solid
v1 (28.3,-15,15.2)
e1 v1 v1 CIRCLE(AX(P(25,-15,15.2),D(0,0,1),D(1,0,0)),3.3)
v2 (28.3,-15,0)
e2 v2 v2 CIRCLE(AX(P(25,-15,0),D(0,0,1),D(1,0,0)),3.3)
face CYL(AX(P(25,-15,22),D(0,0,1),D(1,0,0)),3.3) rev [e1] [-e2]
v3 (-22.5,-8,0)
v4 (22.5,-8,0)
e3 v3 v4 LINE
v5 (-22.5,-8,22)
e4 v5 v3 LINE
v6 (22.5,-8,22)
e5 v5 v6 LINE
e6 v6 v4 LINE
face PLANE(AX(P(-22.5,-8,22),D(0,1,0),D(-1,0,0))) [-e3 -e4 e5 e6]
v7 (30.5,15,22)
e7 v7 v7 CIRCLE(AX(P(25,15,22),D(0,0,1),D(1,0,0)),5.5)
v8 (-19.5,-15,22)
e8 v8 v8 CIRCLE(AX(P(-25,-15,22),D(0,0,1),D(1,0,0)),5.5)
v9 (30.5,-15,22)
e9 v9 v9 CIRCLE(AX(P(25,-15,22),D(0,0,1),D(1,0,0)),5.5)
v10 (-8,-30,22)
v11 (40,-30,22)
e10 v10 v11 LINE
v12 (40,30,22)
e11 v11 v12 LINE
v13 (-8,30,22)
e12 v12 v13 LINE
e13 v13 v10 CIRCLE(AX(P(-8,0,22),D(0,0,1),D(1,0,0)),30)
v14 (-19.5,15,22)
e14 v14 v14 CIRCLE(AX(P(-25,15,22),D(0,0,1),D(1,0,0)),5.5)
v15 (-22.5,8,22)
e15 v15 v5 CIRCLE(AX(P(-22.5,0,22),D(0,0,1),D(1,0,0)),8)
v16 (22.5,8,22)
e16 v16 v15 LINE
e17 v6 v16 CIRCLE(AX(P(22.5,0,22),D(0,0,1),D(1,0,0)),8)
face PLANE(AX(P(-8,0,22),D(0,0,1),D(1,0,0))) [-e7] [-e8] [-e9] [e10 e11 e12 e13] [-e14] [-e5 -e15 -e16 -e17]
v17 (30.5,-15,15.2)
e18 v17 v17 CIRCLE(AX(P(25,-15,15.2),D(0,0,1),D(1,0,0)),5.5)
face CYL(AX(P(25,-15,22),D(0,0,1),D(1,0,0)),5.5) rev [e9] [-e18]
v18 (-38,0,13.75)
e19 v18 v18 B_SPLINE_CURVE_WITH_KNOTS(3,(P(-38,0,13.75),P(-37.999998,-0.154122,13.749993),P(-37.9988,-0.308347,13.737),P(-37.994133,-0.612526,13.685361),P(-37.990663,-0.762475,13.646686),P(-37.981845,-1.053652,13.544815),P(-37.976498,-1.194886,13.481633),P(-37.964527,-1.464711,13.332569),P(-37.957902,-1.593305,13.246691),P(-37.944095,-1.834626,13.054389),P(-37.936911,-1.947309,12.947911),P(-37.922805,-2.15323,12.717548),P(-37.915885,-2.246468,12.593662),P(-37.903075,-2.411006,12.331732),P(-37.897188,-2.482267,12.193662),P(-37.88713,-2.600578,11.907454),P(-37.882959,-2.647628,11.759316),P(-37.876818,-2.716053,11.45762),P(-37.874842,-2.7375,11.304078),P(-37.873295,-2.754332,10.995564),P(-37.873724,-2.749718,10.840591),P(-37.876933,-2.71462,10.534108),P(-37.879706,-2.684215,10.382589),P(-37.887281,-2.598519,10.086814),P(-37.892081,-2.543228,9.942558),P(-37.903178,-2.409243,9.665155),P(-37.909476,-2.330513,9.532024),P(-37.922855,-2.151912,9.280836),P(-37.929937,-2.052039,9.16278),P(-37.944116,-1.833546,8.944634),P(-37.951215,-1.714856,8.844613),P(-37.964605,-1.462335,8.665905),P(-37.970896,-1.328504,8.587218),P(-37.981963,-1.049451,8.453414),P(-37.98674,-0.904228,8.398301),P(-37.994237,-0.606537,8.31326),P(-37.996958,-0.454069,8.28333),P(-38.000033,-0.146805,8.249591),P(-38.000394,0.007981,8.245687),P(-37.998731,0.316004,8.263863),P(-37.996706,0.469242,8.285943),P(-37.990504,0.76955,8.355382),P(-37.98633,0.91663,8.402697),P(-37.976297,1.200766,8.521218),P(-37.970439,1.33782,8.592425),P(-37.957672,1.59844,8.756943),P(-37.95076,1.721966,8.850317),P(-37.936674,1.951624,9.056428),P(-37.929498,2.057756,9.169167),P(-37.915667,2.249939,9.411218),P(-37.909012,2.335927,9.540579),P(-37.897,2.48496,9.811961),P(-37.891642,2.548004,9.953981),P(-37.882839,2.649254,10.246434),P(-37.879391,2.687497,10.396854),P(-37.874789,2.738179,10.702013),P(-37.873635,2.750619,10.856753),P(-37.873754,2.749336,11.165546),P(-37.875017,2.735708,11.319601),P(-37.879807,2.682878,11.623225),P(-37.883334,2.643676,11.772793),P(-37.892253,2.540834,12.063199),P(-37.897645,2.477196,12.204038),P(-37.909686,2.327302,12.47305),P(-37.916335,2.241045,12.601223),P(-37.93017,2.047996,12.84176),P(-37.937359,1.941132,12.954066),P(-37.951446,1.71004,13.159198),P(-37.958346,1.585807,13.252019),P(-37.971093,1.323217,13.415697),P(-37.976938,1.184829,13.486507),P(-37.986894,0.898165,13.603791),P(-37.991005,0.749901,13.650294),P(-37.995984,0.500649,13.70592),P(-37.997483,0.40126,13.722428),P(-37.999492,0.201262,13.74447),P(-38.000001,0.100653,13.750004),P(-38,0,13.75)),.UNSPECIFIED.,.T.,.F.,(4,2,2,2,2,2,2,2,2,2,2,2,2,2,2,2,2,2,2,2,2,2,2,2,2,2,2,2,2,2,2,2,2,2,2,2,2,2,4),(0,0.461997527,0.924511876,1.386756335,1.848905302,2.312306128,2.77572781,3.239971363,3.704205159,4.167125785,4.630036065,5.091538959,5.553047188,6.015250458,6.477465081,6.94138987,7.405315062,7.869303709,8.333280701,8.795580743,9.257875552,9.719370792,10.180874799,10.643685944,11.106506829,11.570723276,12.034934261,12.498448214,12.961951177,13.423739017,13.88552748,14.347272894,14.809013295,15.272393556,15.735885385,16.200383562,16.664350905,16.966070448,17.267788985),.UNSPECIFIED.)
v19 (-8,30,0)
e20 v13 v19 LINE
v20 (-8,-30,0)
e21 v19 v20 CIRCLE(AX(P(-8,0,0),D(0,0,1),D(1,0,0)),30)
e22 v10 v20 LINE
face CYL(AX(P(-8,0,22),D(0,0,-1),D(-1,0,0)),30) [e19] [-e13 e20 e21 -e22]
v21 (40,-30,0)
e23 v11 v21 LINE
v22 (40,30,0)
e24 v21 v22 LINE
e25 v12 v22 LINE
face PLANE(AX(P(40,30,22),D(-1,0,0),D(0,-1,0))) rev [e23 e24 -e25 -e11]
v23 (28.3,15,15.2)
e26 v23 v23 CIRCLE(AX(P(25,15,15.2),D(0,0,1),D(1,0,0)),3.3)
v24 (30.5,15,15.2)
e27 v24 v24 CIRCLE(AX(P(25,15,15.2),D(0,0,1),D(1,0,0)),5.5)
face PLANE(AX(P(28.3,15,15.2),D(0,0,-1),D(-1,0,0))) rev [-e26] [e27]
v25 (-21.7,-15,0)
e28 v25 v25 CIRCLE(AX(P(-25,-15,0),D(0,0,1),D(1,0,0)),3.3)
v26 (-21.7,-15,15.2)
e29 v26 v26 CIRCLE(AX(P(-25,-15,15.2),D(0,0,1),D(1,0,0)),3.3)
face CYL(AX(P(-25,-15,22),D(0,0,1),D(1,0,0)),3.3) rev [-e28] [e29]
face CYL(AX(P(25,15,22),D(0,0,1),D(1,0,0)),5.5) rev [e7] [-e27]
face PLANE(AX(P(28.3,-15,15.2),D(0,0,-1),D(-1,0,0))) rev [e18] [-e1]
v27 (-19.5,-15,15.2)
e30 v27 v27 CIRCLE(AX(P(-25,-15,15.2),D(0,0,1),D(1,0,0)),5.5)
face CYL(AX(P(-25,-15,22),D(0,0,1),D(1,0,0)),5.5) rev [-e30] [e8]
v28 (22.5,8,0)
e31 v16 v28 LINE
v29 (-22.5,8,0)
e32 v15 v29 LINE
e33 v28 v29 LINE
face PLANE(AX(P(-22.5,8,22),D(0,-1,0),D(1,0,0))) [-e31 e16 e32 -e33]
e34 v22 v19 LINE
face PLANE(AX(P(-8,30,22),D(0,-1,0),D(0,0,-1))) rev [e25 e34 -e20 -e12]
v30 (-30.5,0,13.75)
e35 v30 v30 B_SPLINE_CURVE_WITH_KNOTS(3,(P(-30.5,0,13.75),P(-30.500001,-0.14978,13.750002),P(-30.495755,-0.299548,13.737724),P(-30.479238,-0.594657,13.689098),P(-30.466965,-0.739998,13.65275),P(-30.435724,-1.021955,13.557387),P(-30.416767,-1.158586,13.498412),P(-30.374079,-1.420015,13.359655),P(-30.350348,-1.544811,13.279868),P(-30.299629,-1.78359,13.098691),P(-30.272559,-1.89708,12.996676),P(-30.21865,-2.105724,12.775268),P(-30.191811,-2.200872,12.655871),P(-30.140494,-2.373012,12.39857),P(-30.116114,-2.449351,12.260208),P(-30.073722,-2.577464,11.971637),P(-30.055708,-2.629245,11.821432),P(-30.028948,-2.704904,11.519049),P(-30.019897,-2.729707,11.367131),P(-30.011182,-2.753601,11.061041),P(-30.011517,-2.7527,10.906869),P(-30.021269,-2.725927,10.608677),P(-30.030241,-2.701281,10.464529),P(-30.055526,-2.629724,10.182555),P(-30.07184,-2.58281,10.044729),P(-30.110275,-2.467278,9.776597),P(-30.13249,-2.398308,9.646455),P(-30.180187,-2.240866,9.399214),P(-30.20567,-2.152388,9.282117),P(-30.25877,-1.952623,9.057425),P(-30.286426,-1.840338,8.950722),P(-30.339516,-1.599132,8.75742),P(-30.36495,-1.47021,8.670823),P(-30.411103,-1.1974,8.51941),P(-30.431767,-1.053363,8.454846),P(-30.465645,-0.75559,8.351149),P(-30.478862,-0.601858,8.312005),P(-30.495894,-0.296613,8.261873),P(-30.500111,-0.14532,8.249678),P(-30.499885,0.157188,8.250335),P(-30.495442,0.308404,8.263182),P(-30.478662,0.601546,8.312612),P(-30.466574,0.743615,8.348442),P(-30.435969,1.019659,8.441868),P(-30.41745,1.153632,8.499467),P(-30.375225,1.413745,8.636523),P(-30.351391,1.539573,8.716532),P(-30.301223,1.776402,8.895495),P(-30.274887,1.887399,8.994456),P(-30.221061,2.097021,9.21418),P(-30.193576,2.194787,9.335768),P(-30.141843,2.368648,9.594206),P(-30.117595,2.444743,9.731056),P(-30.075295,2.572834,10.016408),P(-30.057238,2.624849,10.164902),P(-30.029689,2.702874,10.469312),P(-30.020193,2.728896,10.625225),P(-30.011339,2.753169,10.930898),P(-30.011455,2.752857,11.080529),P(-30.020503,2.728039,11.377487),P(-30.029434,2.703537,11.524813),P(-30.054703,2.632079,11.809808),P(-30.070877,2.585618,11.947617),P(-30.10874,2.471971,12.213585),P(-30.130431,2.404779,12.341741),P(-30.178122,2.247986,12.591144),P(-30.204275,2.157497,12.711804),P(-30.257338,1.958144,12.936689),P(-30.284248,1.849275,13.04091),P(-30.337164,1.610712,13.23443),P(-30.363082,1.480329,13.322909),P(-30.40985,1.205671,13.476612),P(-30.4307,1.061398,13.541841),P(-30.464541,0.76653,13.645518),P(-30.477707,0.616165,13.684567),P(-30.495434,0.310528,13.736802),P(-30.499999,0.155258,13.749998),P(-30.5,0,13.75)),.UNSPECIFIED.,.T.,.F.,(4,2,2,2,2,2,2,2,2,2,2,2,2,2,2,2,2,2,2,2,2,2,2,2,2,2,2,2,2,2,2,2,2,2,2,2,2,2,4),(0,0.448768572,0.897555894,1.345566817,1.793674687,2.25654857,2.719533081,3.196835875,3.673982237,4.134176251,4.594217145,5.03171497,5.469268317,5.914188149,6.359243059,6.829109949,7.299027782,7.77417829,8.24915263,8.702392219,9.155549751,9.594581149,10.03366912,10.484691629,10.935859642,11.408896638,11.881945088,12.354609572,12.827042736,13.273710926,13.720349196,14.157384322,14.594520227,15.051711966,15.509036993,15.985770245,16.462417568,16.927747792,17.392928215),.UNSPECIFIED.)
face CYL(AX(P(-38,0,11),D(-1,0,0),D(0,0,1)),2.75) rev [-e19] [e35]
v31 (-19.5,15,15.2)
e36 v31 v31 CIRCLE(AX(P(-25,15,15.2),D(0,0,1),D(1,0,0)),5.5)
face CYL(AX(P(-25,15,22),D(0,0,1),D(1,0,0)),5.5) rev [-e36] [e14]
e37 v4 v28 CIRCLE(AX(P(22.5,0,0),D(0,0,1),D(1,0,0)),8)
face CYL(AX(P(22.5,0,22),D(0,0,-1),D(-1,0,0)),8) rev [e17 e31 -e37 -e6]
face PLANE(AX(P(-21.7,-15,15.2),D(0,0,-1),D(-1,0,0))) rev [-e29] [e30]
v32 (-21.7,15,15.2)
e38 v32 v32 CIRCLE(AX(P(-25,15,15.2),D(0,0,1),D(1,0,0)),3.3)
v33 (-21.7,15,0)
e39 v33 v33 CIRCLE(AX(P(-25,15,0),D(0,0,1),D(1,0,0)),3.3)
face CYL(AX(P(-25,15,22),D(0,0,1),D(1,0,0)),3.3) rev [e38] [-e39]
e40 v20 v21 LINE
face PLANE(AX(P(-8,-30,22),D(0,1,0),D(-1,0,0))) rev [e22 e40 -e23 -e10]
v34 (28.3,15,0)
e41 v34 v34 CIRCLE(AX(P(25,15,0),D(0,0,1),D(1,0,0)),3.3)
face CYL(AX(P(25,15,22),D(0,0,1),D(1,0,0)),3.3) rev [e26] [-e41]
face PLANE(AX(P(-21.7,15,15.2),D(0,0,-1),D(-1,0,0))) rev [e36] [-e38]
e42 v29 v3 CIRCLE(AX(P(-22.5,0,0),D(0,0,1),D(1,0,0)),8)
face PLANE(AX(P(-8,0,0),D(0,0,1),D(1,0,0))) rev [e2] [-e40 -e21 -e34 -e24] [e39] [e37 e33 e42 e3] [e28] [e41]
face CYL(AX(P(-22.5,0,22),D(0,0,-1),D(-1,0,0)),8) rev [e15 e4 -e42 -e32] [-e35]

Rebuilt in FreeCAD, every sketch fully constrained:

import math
import FreeCAD as App
import Part
import Sketcher

V = App.Vector
Q = App.Units.Quantity

doc = App.newDocument("Part")
body = doc.addObject("PartDesign::Body", "Body")

# Sketch on XY plane
sketch1 = body.newObject("Sketcher::SketchObject", "Sketch")
sketch1.AttachmentSupport = (doc.getObject("XY_Plane"), [""])
sketch1.MapMode = "FlatFace"
sketch1.addGeometry(Part.LineSegment(V(40, 30, 0), V(-8, 30, 0)), False)
sketch1.addGeometry(Part.ArcOfCircle(Part.Circle(V(-8, 0, 0), V(0, 0, 1), 30), math.radians(90), math.radians(270)), False)
sketch1.addGeometry(Part.LineSegment(V(-8, -30, 0), V(40, -30, 0)), False)
sketch1.addGeometry(Part.LineSegment(V(40, -30, 0), V(40, 30, 0)), False)
sketch1.addGeometry(Part.LineSegment(V(-22.5, 8, 0), V(22.5, 8, 0)), False)
sketch1.addGeometry(Part.ArcOfCircle(Part.Circle(V(22.5, 0, 0), V(0, 0, 1), 8), math.radians(-90), math.radians(90)), False)
sketch1.addGeometry(Part.LineSegment(V(22.5, -8, 0), V(-22.5, -8, 0)), False)
sketch1.addGeometry(Part.ArcOfCircle(Part.Circle(V(-22.5, 0, 0), V(0, 0, 1), 8), math.radians(90), math.radians(270)), False)
sketch1.addConstraint(Sketcher.Constraint("Tangent", 0, 2, 1, 1))
sketch1.addConstraint(Sketcher.Constraint("Tangent", 1, 2, 2, 1))
sketch1.addConstraint(Sketcher.Constraint("Coincident", 2, 2, 3, 1))
sketch1.addConstraint(Sketcher.Constraint("Coincident", 3, 2, 0, 1))
sketch1.addConstraint(Sketcher.Constraint("Tangent", 4, 2, 5, 2))
sketch1.addConstraint(Sketcher.Constraint("Tangent", 5, 1, 6, 1))
sketch1.addConstraint(Sketcher.Constraint("Tangent", 6, 2, 7, 2))
sketch1.addConstraint(Sketcher.Constraint("Tangent", 7, 1, 4, 1))
sketch1.addConstraint(Sketcher.Constraint("Horizontal", 0))
sketch1.addConstraint(Sketcher.Constraint("Horizontal", 2))
sketch1.addConstraint(Sketcher.Constraint("Vertical", 3))
sketch1.addConstraint(Sketcher.Constraint("Horizontal", 4))
sketch1.addConstraint(Sketcher.Constraint("Horizontal", 6))
sketch1.addConstraint(Sketcher.Constraint("Symmetric", 5, 3, 7, 3, -1, 1))
sketch1.addConstraint(Sketcher.Constraint("PointOnObject", 1, 3, -1))
sketch1.addConstraint(Sketcher.Constraint("Radius", 1, Q("30 mm")))
sketch1.addConstraint(Sketcher.Constraint("Radius", 5, Q("8 mm")))
sketch1.addConstraint(Sketcher.Constraint("DistanceX", 0, 2, 0, 1, Q("48 mm")))
sketch1.addConstraint(Sketcher.Constraint("DistanceX", 4, 1, 4, 2, Q("45 mm")))
sketch1.addConstraint(Sketcher.Constraint("DistanceX", 1, 3, -1, 1, Q("8 mm")))
pad1 = body.newObject("PartDesign::Pad", "Pad")
pad1.Profile = sketch1
pad1.Length = 22

# Sketch on XY plane
sketch2 = body.newObject("Sketcher::SketchObject", "Sketch001")
sketch2.AttachmentSupport = (doc.getObject("XY_Plane"), [""])
sketch2.MapMode = "FlatFace"
sketch2.AttachmentOffset = App.Placement(V(0, 0, 22), App.Rotation())
sketch2.addGeometry(Part.Circle(V(-25, 15, 0), V(0, 0, 1), 3.3), False)
sketch2.addGeometry(Part.Circle(V(-25, -15, 0), V(0, 0, 1), 3.3), False)
sketch2.addGeometry(Part.Circle(V(25, 15, 0), V(0, 0, 1), 3.3), False)
sketch2.addGeometry(Part.Circle(V(25, -15, 0), V(0, 0, 1), 3.3), False)
sketch2.addConstraint(Sketcher.Constraint("Equal", 0, 1))
sketch2.addConstraint(Sketcher.Constraint("Equal", 1, 2))
sketch2.addConstraint(Sketcher.Constraint("Equal", 2, 3))
sketch2.addConstraint(Sketcher.Constraint("Symmetric", 1, 3, 2, 3, -1, 1))
sketch2.addConstraint(Sketcher.Constraint("Symmetric", 0, 3, 3, 3, -1, 1))
sketch2.addConstraint(Sketcher.Constraint("Symmetric", 0, 3, 2, 3, -2))
sketch2.addConstraint(Sketcher.Constraint("Diameter", 0, Q("6.6 mm")))
sketch2.addConstraint(Sketcher.Constraint("DistanceX", 0, 3, -1, 1, Q("25 mm")))
sketch2.addConstraint(Sketcher.Constraint("DistanceY", -1, 1, 0, 3, Q("15 mm")))
doc.recompute()
hole = body.newObject("PartDesign::Hole", "Hole")
hole.Profile = sketch2
hole.ThreadType = "None"
hole.Diameter = 6.6
hole.DepthType = "ThroughAll"
hole.HoleCutType = "Counterbore"
hole.HoleCutDiameter = 11
hole.HoleCutDepth = 6.8

# Sketch on YZ plane
sketch3 = body.newObject("Sketcher::SketchObject", "Sketch002")
sketch3.AttachmentSupport = (doc.getObject("YZ_Plane"), [""])
sketch3.MapMode = "FlatFace"
sketch3.AttachmentOffset = App.Placement(V(0, 0, -38), App.Rotation())
sketch3.addGeometry(Part.Circle(V(0, 11, 0), V(0, 0, 1), 2.75), False)
sketch3.addConstraint(Sketcher.Constraint("PointOnObject", 0, 3, -2))
sketch3.addConstraint(Sketcher.Constraint("Diameter", 0, Q("5.5 mm")))
sketch3.addConstraint(Sketcher.Constraint("DistanceY", -1, 1, 0, 3, Q("11 mm")))
pocket1 = body.newObject("PartDesign::Pocket", "Pocket")
pocket1.Profile = sketch3
pocket1.Type = "UpToFirst"
pocket1.Reversed = True

doc.recompute()
